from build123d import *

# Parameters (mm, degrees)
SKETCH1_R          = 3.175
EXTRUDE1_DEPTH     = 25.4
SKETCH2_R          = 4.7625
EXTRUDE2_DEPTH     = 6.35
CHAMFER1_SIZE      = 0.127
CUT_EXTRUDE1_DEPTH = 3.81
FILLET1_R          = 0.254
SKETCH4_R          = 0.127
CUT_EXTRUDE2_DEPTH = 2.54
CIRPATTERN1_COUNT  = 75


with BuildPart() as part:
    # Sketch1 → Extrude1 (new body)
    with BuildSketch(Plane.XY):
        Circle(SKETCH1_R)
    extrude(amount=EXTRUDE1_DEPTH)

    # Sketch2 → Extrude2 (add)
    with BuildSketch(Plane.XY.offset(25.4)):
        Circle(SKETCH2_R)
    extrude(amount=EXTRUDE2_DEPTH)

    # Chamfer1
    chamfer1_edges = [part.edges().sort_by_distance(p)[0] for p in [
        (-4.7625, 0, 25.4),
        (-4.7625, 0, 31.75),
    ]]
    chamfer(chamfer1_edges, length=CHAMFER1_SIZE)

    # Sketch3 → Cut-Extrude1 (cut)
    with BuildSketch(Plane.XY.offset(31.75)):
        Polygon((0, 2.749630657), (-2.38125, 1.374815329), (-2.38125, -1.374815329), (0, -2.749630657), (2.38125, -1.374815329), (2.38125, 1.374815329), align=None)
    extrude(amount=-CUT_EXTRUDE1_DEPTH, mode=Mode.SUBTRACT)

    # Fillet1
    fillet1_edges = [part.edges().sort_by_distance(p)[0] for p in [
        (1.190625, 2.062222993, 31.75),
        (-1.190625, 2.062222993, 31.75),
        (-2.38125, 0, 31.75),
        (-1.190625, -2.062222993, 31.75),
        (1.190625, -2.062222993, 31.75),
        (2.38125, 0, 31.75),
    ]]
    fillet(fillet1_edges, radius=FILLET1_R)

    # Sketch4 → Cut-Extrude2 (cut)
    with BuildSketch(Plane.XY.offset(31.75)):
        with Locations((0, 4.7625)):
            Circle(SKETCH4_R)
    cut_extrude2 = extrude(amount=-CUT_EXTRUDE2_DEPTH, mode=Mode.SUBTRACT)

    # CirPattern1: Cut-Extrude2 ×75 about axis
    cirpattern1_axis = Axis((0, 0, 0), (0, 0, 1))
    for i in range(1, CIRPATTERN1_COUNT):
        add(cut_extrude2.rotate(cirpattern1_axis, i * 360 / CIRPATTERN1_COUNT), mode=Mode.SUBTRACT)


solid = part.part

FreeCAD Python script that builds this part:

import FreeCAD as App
import Part
import Sketcher
Q = App.Units.Quantity


def edges_at(feature, points):
    """Names of the edges that pass closest to the given points."""
    edges = feature.Shape.Edges
    near = lambda p: min(range(len(edges)), key=lambda i: edges[i].distToShape(Part.Vertex(*p))[0])
    return sorted({f"Edge{near(p) + 1}" for p in points})


def add_polygon(sketch, points):
    """Adds a closed chain of lines whose ends are joined by coincident constraints."""
    first, n = sketch.GeometryCount, len(points)
    for a, b in zip(points, points[1:] + points[:1]):
        sketch.addGeometry(Part.LineSegment(App.Vector(*a, 0), App.Vector(*b, 0)), False)
    for i in range(n):
        sketch.addConstraint(Sketcher.Constraint("Coincident", first + i, 2, first + (i + 1) % n, 1))

doc = App.newDocument("Part")
params = doc.addObject("Spreadsheet::Sheet", "Params")
for row, (alias, value) in enumerate([
    ("sketch1_diameter", "0.25 in"),
    ("pad1_length", "1 in"),
    ("sketch2_diameter", "0.375 in"),
    ("pad2_length", "0.25 in"),
    ("chamfer_size", "0.005 in"),
    ("pocket1_length", "0.15 in"),
    ("fillet_radius", "0.01 in"),
    ("sketch4_diameter", "0.01 in"),
    ("pocket2_length", "0.1 in"),
], start=1):
    params.set(f"A{row}", alias)
    params.set(f"B{row}", "=" + value)
    params.setAlias(f"B{row}", alias)

body = doc.addObject("PartDesign::Body", "Body")

# Sketch on XY plane
sketch1 = body.newObject("Sketcher::SketchObject", "Sketch")
sketch1.AttachmentSupport = (doc.getObject("XY_Plane"), [""])
sketch1.MapMode = "FlatFace"
sketch1.addGeometry(Part.Circle(App.Vector(0, 0, 0), App.Vector(0, 0, 1), 3.2), False)
sketch1.addConstraint(Sketcher.Constraint("Coincident", 0, 3, -1, 1))
sketch1.addConstraint(Sketcher.Constraint("Diameter", 0, Q("0.25 in")))
sketch1.setExpression("Constraints[1]", "Params.sketch1_diameter")
pad1 = body.newObject("PartDesign::Pad", "Pad")
pad1.Profile = sketch1
pad1.setExpression("Length", "Params.pad1_length")

# Sketch on XY plane
sketch2 = body.newObject("Sketcher::SketchObject", "Sketch001")
sketch2.AttachmentSupport = (doc.getObject("XY_Plane"), [""])
sketch2.MapMode = "FlatFace"
sketch2.AttachmentOffset = App.Placement(App.Vector(0, 0, 1 * 25.4), App.Rotation())
sketch2.addGeometry(Part.Circle(App.Vector(0, 0, 0), App.Vector(0, 0, 1), 4.8), False)
sketch2.addConstraint(Sketcher.Constraint("Coincident", 0, 3, -1, 1))
sketch2.addConstraint(Sketcher.Constraint("Diameter", 0, Q("0.375 in")))
sketch2.setExpression("Constraints[1]", "Params.sketch2_diameter")
pad2 = body.newObject("PartDesign::Pad", "Pad001")
pad2.Profile = sketch2
pad2.setExpression("Length", "Params.pad2_length")
doc.recompute()

chamfer = body.newObject("PartDesign::Chamfer", "Chamfer")
chamfer.Base = (pad2, edges_at(pad2, [(-4.763, 0, 25.4), (-4.763, 0, 31.75)]))
chamfer.setExpression("Size", "Params.chamfer_size")

# Sketch on XY plane
sketch3 = body.newObject("Sketcher::SketchObject", "Sketch002")
sketch3.AttachmentSupport = (doc.getObject("XY_Plane"), [""])
sketch3.MapMode = "FlatFace"
sketch3.AttachmentOffset = App.Placement(App.Vector(0, 0, 1.25 * 25.4), App.Rotation())
add_polygon(sketch3, [(0, 2.7), (-2.4, 1.4), (-2.4, -1.4), (0, -2.7), (2.4, -1.4), (2.4, 1.4)])  # lines 0-5
sketch3.addConstraint(Sketcher.Constraint("Vertical", 1))
sketch3.addConstraint(Sketcher.Constraint("Vertical", 4))
sketch3.addConstraint(Sketcher.Constraint("Symmetric", 0, 2, 3, 2, -1, 1))
sketch3.addConstraint(Sketcher.Constraint("Symmetric", 2, 2, 5, 2, -1, 1))
sketch3.addConstraint(Sketcher.Constraint("PointOnObject", 2, 2, -2))
sketch3.addConstraint(Sketcher.Constraint("Parallel", 2, 5))
sketch3.addConstraint(Sketcher.Constraint("Horizontal", 1, 2, 3, 2))
sketch3.addConstraint(Sketcher.Constraint("Angle", 0, Q("-150 deg")))
sketch3.addConstraint(Sketcher.Constraint("DistanceX", 0, 2, -1, 1, Q("0.09375 in")))
sketch3.addConstraint(Sketcher.Constraint("DistanceY", 1, 2, 1, 1, Q("2.749631 mm")))
pocket1 = body.newObject("PartDesign::Pocket", "Pocket")
pocket1.Profile = sketch3
pocket1.setExpression("Length", "Params.pocket1_length")
doc.recompute()

fillet = body.newObject("PartDesign::Fillet", "Fillet")
fillet.Base = (pocket1, edges_at(pocket1, [
    (1.191, 2.062, 31.75),
    (-1.191, 2.062, 31.75),
    (-2.381, 0, 31.75),
    (-1.191, -2.062, 31.75),
    (1.191, -2.062, 31.75),
    (2.381, 0, 31.75),
]))
fillet.setExpression("Radius", "Params.fillet_radius")

# Sketch on XY plane
sketch4 = body.newObject("Sketcher::SketchObject", "Sketch003")
sketch4.AttachmentSupport = (doc.getObject("XY_Plane"), [""])
sketch4.MapMode = "FlatFace"
sketch4.AttachmentOffset = App.Placement(App.Vector(0, 0, 1.25 * 25.4), App.Rotation())
sketch4.addGeometry(Part.Circle(App.Vector(0, 4.76, 0), App.Vector(0, 0, 1), 0.13), False)
sketch4.addConstraint(Sketcher.Constraint("PointOnObject", 0, 3, -2))
sketch4.addConstraint(Sketcher.Constraint("Diameter", 0, Q("0.01 in")))
sketch4.addConstraint(Sketcher.Constraint("DistanceY", -1, 1, 0, 3, Q("0.1875 in")))
sketch4.setExpression("Constraints[1]", "Params.sketch4_diameter")
pocket2 = body.newObject("PartDesign::Pocket", "Pocket001")
pocket2.Profile = sketch4
pocket2.setExpression("Length", "Params.pocket2_length")
doc.recompute()

polarpattern = body.newObject("PartDesign::PolarPattern", "PolarPattern")
polarpattern.Originals = [pocket2]
polarpattern.Axis = (doc.getObject("Z_Axis"), [""])
polarpattern.Angle = 360
polarpattern.Occurrences = 75
body.Tip = polarpattern

doc.recompute()
